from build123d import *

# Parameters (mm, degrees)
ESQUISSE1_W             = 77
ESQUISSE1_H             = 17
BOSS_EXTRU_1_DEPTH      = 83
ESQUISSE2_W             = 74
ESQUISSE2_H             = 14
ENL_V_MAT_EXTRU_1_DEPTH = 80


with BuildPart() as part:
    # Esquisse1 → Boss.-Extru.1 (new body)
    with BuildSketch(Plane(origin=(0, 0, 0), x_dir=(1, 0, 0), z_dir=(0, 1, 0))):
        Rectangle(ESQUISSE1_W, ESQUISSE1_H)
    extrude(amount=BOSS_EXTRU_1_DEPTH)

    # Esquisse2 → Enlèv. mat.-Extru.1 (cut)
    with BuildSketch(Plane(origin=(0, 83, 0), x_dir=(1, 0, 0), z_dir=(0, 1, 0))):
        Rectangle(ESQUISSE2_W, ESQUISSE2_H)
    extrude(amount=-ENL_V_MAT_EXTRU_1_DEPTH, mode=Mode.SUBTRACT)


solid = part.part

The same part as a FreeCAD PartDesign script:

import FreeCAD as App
import Part
import Sketcher

V = App.Vector

doc = App.newDocument("Part")
body = doc.addObject("PartDesign::Body", "Body")

sketch1 = body.newObject("Sketcher::SketchObject", "Sketch")
sketch1.AttachmentSupport = (doc.getObject("XZ_Plane"), [""])
sketch1.MapMode = "FlatFace"
sketch1.addGeometry([
    Part.LineSegment(V(-38, -8, 0), V(-38, 8, 0)),
    Part.LineSegment(V(-38, 8, 0), V(38, 8, 0)),
    Part.LineSegment(V(38, 8, 0), V(38, -8, 0)),
    Part.LineSegment(V(38, -8, 0), V(-38, -8, 0)),
], False)
sketch1.addConstraint([
    Sketcher.Constraint("Coincident", 0, 2, 1, 1),
    Sketcher.Constraint("Coincident", 1, 2, 2, 1),
    Sketcher.Constraint("Coincident", 2, 2, 3, 1),
    Sketcher.Constraint("Coincident", 3, 2, 0, 1),
    Sketcher.Constraint("Vertical", 0),
    Sketcher.Constraint("Horizontal", 1),
    Sketcher.Constraint("Vertical", 2),
    Sketcher.Constraint("Horizontal", 3),
    Sketcher.Constraint("Symmetric", 0, 2, 2, 2, -1, 1),
    Sketcher.Constraint("DistanceX", 1, 1, 1, 2, 77.0),
    Sketcher.Constraint("DistanceY", 0, 1, 0, 2, 17.0),
])
pad1 = body.newObject("PartDesign::Pad", "Pad")
pad1.Profile = sketch1
pad1.Length = 83
pad1.Reversed = True

sketch2 = body.newObject("Sketcher::SketchObject", "Sketch001")
sketch2.AttachmentSupport = (doc.getObject("XZ_Plane"), [""])
sketch2.MapMode = "FlatFace"
sketch2.AttachmentOffset = App.Placement(V(0, 0, -83), App.Rotation())
sketch2.addGeometry([
    Part.LineSegment(V(-37, -7, 0), V(-37, 7, 0)),
    Part.LineSegment(V(-37, 7, 0), V(37, 7, 0)),
    Part.LineSegment(V(37, 7, 0), V(37, -7, 0)),
    Part.LineSegment(V(37, -7, 0), V(-37, -7, 0)),
], False)
sketch2.addConstraint([
    Sketcher.Constraint("Coincident", 0, 2, 1, 1),
    Sketcher.Constraint("Coincident", 1, 2, 2, 1),
    Sketcher.Constraint("Coincident", 2, 2, 3, 1),
    Sketcher.Constraint("Coincident", 3, 2, 0, 1),
    Sketcher.Constraint("Vertical", 0),
    Sketcher.Constraint("Horizontal", 1),
    Sketcher.Constraint("Vertical", 2),
    Sketcher.Constraint("Horizontal", 3),
    Sketcher.Constraint("Symmetric", 0, 2, 2, 2, -1, 1),
    Sketcher.Constraint("DistanceX", 1, 1, 1, 2, 74.0),
    Sketcher.Constraint("DistanceY", 0, 1, 0, 2, 14.0),
])
pocket1 = body.newObject("PartDesign::Pocket", "Pocket")
pocket1.Profile = sketch2
pocket1.Length = 80
pocket1.Reversed = True

doc.recompute()
